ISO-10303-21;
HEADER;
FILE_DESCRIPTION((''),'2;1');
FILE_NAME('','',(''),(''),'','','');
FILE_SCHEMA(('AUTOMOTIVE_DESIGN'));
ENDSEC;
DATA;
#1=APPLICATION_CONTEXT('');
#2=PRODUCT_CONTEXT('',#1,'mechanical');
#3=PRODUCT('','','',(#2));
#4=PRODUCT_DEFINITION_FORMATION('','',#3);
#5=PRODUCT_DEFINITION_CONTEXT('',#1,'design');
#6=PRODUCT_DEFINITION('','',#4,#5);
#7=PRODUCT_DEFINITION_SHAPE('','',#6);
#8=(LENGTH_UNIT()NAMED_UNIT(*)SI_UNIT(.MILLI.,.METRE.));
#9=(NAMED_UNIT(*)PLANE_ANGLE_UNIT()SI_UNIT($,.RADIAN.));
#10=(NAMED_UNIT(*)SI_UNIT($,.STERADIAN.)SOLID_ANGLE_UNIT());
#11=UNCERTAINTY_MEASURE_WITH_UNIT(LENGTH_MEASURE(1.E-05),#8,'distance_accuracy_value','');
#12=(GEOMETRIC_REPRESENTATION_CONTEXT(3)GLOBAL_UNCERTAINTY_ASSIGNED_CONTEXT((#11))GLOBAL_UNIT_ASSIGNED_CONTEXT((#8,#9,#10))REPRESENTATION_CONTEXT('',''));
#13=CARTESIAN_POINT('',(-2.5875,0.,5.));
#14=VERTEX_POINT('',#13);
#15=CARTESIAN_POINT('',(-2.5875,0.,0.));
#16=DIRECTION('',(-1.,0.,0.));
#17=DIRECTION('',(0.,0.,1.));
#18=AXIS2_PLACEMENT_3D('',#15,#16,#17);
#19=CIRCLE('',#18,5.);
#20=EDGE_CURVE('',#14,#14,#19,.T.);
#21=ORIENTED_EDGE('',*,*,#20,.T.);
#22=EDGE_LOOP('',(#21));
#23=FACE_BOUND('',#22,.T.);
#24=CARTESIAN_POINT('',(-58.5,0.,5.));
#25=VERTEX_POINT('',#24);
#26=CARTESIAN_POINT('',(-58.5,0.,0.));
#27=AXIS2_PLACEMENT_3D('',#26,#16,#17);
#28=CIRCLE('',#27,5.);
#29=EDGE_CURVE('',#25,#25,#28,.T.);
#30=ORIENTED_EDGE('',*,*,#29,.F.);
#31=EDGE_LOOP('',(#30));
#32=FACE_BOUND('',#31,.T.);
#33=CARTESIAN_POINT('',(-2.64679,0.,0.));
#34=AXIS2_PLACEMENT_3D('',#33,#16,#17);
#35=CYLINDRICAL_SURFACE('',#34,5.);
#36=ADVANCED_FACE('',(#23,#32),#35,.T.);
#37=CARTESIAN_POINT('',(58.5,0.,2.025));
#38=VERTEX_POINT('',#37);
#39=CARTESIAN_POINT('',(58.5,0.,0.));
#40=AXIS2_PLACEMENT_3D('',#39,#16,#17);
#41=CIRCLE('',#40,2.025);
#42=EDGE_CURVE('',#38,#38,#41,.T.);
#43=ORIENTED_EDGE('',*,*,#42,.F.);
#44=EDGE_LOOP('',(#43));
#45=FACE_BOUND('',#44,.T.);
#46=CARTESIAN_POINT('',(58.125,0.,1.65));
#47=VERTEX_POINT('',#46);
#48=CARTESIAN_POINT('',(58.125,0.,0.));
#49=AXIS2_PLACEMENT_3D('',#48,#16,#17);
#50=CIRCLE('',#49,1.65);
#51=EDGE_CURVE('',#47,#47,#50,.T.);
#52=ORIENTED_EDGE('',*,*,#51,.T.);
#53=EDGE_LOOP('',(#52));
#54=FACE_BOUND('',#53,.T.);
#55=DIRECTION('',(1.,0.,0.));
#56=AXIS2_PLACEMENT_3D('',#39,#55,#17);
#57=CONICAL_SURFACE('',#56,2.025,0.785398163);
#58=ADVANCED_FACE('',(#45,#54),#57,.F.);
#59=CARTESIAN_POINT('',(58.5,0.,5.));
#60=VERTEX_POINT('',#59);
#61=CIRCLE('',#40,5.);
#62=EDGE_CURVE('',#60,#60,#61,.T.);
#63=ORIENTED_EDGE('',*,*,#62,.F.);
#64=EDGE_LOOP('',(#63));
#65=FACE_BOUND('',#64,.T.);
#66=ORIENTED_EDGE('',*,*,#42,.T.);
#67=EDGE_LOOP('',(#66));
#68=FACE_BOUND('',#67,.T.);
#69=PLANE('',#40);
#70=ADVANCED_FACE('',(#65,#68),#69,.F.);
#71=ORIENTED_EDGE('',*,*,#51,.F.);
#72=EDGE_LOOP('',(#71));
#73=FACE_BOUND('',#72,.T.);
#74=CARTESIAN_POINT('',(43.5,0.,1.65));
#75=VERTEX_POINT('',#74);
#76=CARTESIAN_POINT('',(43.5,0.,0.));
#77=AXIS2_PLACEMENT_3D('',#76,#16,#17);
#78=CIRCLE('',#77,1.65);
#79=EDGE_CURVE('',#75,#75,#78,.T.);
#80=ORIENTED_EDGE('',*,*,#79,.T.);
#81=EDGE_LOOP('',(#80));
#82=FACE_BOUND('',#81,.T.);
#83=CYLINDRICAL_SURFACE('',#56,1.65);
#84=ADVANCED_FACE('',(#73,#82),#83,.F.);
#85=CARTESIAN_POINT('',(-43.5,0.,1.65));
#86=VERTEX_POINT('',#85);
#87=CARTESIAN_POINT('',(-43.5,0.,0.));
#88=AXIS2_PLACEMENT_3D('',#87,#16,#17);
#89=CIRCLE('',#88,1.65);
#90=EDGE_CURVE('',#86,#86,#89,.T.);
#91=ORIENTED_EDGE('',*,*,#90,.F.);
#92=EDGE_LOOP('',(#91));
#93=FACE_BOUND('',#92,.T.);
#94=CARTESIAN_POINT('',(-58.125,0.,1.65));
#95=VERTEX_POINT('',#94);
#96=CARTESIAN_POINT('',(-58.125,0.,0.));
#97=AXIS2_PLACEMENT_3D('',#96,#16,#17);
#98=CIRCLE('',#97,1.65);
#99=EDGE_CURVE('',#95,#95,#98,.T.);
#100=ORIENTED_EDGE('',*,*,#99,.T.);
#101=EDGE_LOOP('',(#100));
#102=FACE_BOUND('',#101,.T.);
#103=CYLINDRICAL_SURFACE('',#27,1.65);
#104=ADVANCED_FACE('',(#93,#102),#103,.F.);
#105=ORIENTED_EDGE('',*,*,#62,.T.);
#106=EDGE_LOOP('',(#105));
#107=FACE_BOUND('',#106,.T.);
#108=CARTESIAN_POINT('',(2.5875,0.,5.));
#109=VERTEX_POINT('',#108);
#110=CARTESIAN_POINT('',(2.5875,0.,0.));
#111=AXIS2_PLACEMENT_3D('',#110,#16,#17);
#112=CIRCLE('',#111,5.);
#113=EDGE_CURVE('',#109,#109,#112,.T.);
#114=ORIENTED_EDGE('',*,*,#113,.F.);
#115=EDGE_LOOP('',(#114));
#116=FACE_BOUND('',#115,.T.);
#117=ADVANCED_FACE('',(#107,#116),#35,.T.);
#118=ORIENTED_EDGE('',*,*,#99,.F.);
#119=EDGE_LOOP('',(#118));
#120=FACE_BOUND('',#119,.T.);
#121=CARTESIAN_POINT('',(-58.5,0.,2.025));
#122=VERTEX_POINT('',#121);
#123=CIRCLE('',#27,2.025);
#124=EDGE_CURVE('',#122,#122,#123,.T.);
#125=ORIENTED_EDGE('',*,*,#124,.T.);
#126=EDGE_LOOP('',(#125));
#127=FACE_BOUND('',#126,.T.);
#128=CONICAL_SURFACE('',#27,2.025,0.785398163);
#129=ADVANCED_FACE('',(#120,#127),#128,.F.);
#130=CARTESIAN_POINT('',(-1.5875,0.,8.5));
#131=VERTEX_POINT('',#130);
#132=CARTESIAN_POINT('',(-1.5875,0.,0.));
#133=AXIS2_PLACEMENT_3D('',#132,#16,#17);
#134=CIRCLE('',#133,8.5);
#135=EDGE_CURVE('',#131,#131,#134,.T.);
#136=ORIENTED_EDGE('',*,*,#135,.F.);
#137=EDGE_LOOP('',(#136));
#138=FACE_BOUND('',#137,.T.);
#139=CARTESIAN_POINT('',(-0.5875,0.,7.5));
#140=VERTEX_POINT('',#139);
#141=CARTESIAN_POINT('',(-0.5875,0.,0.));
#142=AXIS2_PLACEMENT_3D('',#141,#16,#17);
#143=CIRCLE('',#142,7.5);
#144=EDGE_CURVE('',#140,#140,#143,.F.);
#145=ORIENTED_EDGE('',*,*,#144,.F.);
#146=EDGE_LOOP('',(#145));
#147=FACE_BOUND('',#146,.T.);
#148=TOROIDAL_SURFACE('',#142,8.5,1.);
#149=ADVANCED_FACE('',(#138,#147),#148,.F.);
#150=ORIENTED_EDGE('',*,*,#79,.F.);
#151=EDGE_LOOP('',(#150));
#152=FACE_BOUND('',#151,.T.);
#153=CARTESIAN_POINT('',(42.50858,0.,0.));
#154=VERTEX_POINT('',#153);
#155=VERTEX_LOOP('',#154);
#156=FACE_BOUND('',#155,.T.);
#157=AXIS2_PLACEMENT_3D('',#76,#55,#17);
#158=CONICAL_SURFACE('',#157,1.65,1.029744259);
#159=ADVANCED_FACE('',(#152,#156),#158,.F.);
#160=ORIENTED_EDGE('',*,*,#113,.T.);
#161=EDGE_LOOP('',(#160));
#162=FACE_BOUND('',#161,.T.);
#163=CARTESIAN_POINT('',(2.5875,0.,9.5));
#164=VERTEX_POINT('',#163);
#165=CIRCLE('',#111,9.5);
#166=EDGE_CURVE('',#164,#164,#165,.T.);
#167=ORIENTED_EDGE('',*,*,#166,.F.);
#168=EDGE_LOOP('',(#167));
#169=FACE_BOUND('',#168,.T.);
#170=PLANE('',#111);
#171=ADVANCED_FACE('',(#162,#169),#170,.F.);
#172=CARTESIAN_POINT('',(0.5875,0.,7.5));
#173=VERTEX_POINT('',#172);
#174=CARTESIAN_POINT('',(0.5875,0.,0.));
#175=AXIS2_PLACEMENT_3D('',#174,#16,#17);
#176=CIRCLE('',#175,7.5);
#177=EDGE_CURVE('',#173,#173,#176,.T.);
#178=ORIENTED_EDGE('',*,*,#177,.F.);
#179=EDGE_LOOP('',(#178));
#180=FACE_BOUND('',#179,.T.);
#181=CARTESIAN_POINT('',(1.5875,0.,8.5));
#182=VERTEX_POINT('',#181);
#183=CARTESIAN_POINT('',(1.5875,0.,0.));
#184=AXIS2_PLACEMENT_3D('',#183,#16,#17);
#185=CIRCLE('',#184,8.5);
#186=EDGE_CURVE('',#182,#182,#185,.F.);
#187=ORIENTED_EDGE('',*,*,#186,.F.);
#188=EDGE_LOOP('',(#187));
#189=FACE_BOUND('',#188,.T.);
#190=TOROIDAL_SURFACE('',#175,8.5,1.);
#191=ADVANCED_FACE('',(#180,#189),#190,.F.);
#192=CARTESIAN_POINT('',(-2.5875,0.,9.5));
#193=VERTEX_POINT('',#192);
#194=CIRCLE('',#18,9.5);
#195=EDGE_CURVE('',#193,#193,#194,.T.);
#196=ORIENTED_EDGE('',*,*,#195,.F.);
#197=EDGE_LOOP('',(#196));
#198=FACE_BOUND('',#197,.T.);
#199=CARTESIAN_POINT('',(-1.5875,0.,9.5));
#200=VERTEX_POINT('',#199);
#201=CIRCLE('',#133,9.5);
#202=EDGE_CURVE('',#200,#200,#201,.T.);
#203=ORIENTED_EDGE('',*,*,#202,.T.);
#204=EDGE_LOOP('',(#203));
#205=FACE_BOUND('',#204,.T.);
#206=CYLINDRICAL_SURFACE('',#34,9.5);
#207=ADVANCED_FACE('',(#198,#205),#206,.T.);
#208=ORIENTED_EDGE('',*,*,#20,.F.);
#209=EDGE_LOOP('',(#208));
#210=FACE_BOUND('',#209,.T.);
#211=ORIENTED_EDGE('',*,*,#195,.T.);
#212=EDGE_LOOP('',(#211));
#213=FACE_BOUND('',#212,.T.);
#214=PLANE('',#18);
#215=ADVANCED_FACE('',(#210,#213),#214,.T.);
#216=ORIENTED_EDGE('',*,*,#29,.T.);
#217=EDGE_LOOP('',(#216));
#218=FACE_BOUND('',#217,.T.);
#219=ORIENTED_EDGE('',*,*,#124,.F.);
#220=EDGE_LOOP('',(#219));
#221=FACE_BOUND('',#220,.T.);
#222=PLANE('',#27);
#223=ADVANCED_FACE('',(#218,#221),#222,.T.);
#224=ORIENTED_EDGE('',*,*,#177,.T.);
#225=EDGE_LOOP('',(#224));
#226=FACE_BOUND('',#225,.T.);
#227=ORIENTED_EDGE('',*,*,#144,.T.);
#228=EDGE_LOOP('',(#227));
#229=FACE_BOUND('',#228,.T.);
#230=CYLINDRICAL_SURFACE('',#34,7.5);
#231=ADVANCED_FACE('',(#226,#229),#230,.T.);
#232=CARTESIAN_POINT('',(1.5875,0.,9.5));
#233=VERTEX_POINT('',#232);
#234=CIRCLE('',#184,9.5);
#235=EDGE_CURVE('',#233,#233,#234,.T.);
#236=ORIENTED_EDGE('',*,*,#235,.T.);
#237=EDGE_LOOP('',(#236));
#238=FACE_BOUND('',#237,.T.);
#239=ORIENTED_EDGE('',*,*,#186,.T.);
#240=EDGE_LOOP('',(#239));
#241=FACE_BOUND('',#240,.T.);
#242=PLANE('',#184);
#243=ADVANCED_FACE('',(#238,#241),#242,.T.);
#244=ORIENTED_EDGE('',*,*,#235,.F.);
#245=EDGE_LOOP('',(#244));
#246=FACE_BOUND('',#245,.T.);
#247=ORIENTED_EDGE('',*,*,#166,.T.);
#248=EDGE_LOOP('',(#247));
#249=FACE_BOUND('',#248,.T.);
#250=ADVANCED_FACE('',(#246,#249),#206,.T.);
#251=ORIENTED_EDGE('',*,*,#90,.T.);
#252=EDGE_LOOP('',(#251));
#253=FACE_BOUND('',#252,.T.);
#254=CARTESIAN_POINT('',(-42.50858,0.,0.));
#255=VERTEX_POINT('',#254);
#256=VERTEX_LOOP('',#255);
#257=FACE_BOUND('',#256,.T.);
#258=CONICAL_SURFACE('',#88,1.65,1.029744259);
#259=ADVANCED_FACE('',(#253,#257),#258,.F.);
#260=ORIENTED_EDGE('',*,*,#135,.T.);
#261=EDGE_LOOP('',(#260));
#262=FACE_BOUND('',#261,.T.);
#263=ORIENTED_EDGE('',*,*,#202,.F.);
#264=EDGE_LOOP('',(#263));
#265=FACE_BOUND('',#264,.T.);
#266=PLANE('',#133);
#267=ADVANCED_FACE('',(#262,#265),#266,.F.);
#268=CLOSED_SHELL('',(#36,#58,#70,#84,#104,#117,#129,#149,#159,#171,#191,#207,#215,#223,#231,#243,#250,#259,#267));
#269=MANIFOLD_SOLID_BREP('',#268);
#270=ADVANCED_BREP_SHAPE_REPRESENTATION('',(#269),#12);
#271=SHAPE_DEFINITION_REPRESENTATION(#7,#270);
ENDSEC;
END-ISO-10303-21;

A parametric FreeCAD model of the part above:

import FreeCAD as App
import Part
import Sketcher
Q = App.Units.Quantity


def edges_at(feature, points):
    """Names of the edges that pass closest to the given points."""
    edges = feature.Shape.Edges
    near = lambda p: min(range(len(edges)), key=lambda i: edges[i].distToShape(Part.Vertex(*p))[0])
    return sorted({f"Edge{near(p) + 1}" for p in points})


def add_polygon(sketch, points):
    """Adds a closed chain of lines whose ends are joined by coincident constraints."""
    first, n = sketch.GeometryCount, len(points)
    for a, b in zip(points, points[1:] + points[:1]):
        sketch.addGeometry(Part.LineSegment(App.Vector(*a, 0), App.Vector(*b, 0)), False)
    for i in range(n):
        sketch.addConstraint(Sketcher.Constraint("Coincident", first + i, 2, first + (i + 1) % n, 1))

doc = App.newDocument("Part")
body = doc.addObject("PartDesign::Body", "Body")

# Sketch on XZ plane
sketch1 = body.newObject("Sketcher::SketchObject", "Sketch")
sketch1.AttachmentSupport = (doc.getObject("XZ_Plane"), [""])
sketch1.MapMode = "FlatFace"
add_polygon(sketch1, [(2.6, -5), (2.6, -9.5), (1.6, -9.5), (1.6, -7.5), (-1.6, -7.5), (-1.6, -9.5), (-2.6, -9.5), (-2.6, -5), (-58.5, -5), (-58.5, 0), (58.5, 0), (58.5, -5)])  # lines 0-11
sketch1.addConstraint([
    Sketcher.Constraint("Vertical", 0),
    Sketcher.Constraint("Horizontal", 1),
    Sketcher.Constraint("Vertical", 2),
    Sketcher.Constraint("Horizontal", 3),
    Sketcher.Constraint("Vertical", 4),
    Sketcher.Constraint("Horizontal", 5),
    Sketcher.Constraint("Vertical", 6),
    Sketcher.Constraint("Horizontal", 7),
    Sketcher.Constraint("Vertical", 8),
    Sketcher.Constraint("Horizontal", 9),
    Sketcher.Constraint("Vertical", 10),
    Sketcher.Constraint("Horizontal", 11),
    Sketcher.Constraint("Symmetric", 8, 2, 9, 2, -1, 1),
    Sketcher.Constraint("Symmetric", 1, 2, 4, 2, -2),
    Sketcher.Constraint("Symmetric", 6, 2, 11, 2, -2),
    Sketcher.Constraint("DistanceX", 1, 2, 1, 1, Q("1 mm")),
    Sketcher.Constraint("DistanceX", 9, 1, 9, 2, Q("117 mm")),
    Sketcher.Constraint("DistanceY", 2, 1, 2, 2, Q("2 mm")),
    Sketcher.Constraint("DistanceY", 8, 1, 8, 2, Q("5 mm")),
    Sketcher.Constraint("DistanceY", 0, 2, 0, 1, Q("4.5 mm")),
    Sketcher.Constraint("DistanceX", 3, 2, 3, 1, Q("3.175 mm")),
])
revolution = body.newObject("PartDesign::Revolution", "Revolution")
revolution.Profile = sketch1
revolution.ReferenceAxis = (sketch1, ["H_Axis"])
revolution.Angle = 360
doc.recompute()

fillet = body.newObject("PartDesign::Fillet", "Fillet")
fillet.Base = (revolution, edges_at(revolution, [(-1.587, 0, 7.5), (1.587, 0, 7.5)]))
fillet.Radius = 1

# Sketch on XZ plane
sketch2 = body.newObject("Sketcher::SketchObject", "Sketch001")
sketch2.AttachmentSupport = (doc.getObject("XZ_Plane"), [""])
sketch2.MapMode = "FlatFace"
add_polygon(sketch2, [(-42.5, 0), (-58.5, 0), (-58.5, 2), (-58.1, 1.6), (-43.5, 1.6)])  # lines 0-4
sketch2.addConstraint([
    Sketcher.Constraint("Horizontal", 0),
    Sketcher.Constraint("Vertical", 1),
    Sketcher.Constraint("Horizontal", 3),
    Sketcher.Constraint("PointOnObject", 0, 2, -1),
    Sketcher.Constraint("Angle", 2, Q("-45 deg")),
    Sketcher.Constraint("Angle", 4, Q("-59 deg")),
    Sketcher.Constraint("DistanceX", 1, 2, 3, 2, Q("15 mm")),
    Sketcher.Constraint("DistanceX", 0, 2, -1, 1, Q("58.5 mm")),
    Sketcher.Constraint("DistanceX", 3, 1, 3, 2, Q("14.625 mm")),
    Sketcher.Constraint("DistanceY", 1, 1, 1, 2, Q("2.025 mm")),
])
groove = body.newObject("PartDesign::Groove", "Groove")
groove.Profile = sketch2
groove.ReferenceAxis = (sketch2, ["H_Axis"])
groove.Angle = 360
doc.recompute()

mirrored = body.newObject("PartDesign::Mirrored", "Mirrored")
mirrored.Originals = [groove]
mirrored.MirrorPlane = (doc.getObject("YZ_Plane"), [""])
body.Tip = mirrored

doc.recompute()
